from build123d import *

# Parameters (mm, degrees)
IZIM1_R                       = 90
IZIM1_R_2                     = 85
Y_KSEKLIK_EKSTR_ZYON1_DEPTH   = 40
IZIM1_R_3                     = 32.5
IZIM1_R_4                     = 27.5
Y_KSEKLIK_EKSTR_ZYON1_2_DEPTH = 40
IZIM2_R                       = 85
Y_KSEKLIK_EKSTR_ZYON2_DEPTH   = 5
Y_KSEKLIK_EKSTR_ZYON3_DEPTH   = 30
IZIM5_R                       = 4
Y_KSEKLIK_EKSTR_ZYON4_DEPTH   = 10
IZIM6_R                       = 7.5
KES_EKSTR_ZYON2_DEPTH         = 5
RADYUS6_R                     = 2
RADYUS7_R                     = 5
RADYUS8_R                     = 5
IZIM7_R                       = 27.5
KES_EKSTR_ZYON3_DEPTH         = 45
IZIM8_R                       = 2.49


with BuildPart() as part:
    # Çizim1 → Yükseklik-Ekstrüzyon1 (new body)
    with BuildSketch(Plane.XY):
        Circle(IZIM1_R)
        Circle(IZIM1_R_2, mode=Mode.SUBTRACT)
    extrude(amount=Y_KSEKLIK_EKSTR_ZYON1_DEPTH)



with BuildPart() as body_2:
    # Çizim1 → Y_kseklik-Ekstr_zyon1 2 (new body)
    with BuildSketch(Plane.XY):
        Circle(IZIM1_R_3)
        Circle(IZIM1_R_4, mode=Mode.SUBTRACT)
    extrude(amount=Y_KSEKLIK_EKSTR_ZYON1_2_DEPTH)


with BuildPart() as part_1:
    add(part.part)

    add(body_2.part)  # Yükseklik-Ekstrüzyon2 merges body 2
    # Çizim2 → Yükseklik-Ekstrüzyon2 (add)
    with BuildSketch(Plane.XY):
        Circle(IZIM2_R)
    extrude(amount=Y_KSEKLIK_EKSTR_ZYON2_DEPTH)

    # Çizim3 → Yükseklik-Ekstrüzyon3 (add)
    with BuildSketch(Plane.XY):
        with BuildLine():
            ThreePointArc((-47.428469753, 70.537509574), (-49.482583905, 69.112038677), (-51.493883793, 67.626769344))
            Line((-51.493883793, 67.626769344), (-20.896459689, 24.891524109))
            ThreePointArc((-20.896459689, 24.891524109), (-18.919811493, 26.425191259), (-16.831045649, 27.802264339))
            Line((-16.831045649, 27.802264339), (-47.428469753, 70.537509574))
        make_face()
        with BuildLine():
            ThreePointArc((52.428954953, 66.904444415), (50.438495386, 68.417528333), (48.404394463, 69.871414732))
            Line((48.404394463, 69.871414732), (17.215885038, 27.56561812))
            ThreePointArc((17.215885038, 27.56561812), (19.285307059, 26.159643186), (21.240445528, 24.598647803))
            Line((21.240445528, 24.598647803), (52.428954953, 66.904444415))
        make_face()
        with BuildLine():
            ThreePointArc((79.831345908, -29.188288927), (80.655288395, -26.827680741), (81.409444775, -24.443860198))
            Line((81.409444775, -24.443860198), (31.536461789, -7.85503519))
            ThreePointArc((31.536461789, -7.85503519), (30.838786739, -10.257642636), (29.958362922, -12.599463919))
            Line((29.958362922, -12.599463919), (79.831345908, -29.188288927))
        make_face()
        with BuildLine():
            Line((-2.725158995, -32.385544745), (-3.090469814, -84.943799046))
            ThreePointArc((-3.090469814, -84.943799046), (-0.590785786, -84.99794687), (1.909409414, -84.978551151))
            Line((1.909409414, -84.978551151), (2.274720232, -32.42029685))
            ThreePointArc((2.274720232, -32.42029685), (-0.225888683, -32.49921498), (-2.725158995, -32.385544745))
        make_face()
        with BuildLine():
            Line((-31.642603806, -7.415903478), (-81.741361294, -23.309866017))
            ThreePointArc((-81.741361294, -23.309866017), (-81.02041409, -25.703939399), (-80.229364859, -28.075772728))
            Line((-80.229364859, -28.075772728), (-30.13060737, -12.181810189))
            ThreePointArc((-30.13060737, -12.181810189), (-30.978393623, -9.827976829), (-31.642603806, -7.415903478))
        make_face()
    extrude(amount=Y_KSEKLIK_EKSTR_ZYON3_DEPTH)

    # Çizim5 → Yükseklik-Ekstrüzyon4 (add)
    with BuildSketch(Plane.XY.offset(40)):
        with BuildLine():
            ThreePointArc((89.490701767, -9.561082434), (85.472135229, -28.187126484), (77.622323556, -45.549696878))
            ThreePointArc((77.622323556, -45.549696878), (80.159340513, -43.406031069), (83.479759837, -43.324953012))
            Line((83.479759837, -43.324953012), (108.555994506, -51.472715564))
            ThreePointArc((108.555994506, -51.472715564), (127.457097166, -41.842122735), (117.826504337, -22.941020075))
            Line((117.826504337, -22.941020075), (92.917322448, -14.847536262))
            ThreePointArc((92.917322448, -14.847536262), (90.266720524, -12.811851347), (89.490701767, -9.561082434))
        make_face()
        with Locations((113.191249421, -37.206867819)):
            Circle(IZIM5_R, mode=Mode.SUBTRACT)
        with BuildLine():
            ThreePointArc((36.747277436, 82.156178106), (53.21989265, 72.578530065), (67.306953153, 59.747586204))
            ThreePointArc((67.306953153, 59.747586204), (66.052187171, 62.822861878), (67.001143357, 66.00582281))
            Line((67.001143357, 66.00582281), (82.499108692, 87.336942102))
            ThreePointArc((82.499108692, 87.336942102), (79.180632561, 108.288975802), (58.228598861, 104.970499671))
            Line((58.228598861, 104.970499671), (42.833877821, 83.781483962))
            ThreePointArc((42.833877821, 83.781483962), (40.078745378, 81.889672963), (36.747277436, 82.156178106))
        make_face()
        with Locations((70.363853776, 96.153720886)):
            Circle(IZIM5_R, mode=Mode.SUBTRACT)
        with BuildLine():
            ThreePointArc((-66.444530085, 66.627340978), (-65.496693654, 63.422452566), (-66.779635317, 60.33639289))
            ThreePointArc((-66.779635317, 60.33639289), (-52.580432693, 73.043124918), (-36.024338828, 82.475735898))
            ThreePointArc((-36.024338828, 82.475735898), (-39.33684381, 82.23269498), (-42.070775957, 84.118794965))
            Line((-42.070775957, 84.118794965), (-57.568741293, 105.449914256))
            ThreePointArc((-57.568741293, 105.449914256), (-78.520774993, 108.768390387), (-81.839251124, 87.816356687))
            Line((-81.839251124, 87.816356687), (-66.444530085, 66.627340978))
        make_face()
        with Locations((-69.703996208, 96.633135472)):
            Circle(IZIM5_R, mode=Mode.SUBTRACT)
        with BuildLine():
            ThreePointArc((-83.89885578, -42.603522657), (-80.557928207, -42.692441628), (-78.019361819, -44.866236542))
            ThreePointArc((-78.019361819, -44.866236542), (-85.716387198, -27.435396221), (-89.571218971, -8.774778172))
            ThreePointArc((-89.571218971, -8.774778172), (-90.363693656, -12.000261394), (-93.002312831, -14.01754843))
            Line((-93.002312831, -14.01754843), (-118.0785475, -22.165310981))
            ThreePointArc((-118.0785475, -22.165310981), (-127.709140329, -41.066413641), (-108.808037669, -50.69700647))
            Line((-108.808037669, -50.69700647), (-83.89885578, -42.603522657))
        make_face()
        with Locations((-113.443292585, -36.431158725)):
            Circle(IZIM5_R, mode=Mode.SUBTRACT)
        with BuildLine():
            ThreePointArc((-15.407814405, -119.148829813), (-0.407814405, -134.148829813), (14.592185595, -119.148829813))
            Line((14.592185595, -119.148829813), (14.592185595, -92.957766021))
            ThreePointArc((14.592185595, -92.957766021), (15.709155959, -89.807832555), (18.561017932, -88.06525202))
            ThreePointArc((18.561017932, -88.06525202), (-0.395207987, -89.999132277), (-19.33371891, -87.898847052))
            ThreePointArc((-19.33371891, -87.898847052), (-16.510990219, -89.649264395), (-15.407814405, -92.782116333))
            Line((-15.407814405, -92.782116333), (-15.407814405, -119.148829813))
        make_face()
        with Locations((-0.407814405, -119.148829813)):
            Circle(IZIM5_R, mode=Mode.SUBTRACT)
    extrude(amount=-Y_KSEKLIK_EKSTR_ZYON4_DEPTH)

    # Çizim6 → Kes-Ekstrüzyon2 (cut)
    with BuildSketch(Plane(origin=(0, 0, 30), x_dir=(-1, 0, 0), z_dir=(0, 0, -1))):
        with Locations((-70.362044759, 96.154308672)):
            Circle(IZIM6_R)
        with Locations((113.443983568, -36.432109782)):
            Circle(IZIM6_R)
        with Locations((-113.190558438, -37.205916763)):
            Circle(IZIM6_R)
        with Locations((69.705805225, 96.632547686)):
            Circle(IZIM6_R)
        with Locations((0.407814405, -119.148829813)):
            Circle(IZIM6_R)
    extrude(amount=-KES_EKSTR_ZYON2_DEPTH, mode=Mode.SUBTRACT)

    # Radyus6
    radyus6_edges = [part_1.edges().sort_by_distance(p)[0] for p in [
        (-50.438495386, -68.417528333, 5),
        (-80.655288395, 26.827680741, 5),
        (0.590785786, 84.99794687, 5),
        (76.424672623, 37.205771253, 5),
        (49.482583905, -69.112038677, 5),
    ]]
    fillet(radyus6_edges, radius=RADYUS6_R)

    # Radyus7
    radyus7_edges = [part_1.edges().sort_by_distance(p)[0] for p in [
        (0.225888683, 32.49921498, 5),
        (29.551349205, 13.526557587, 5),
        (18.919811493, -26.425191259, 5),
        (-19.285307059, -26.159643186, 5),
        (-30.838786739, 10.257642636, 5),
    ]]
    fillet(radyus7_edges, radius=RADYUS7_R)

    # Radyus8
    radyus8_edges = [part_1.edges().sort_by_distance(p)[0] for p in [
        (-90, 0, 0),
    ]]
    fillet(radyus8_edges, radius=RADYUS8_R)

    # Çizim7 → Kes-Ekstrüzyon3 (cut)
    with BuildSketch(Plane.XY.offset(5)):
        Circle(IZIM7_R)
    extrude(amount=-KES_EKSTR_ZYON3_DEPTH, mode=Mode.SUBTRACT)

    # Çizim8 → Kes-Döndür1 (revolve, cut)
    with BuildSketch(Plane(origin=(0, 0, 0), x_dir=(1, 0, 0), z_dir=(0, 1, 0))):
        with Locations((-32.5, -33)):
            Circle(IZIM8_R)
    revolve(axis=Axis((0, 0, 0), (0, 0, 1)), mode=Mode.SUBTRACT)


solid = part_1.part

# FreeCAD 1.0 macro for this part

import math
import FreeCAD as App
import Part
import Sketcher
from FreeCAD import Vector
Q = App.Units.Quantity


def edges_at(feature, points):
    """Names of the edges that pass closest to the given points."""
    edges = feature.Shape.Edges
    near = lambda p: min(range(len(edges)), key=lambda i: edges[i].distToShape(Part.Vertex(*p))[0])
    return sorted({f"Edge{near(p) + 1}" for p in points})

doc = App.newDocument("Part")
body = doc.addObject("PartDesign::Body", "Body")

# Sketch on XY plane
sketch1 = body.newObject("Sketcher::SketchObject", "Sketch")
sketch1.AttachmentSupport = (doc.getObject("XY_Plane"), [""])
sketch1.MapMode = "FlatFace"
sketch1.addGeometry(Part.Circle(Vector(0, 0, 0), Vector(0, 0, 1), 90), False)
sketch1.addGeometry(Part.Circle(Vector(0, 0, 0), Vector(0, 0, 1), 85), False)
sketch1.addConstraint(Sketcher.Constraint("Coincident", 0, 3, -1, 1))
sketch1.addConstraint(Sketcher.Constraint("Coincident", 1, 3, -1, 1))
sketch1.addConstraint(Sketcher.Constraint("Diameter", 0, Q("180 mm")))
sketch1.addConstraint(Sketcher.Constraint("Diameter", 1, Q("170 mm")))
pad1 = body.newObject("PartDesign::Pad", "Pad")
pad1.Profile = sketch1
pad1.Length = 40
body2 = doc.addObject("PartDesign::Body", "Body001")

# Sketch on XY plane
sketch2 = body2.newObject("Sketcher::SketchObject", "Sketch001")
sketch2.AttachmentSupport = (doc.getObject("XY_Plane001"), [""])
sketch2.MapMode = "FlatFace"
sketch2.addGeometry(Part.Circle(Vector(0, 0, 0), Vector(0, 0, 1), 32), False)
sketch2.addGeometry(Part.Circle(Vector(0, 0, 0), Vector(0, 0, 1), 28), False)
sketch2.addConstraint(Sketcher.Constraint("Coincident", 0, 3, -1, 1))
sketch2.addConstraint(Sketcher.Constraint("Coincident", 1, 3, -1, 1))
sketch2.addConstraint(Sketcher.Constraint("Diameter", 0, Q("65 mm")))
sketch2.addConstraint(Sketcher.Constraint("Diameter", 1, Q("55 mm")))
pad2 = body2.newObject("PartDesign::Pad", "Pad001")
pad2.Profile = sketch2
pad2.Length = 40
body.AllowCompound = True
doc.recompute()

boolean = body.newObject("PartDesign::Boolean", "Boolean")
boolean.Type = "Fuse"
boolean.addObjects([body2])

# Sketch on XY plane
sketch3 = body.newObject("Sketcher::SketchObject", "Sketch002")
sketch3.AttachmentSupport = (doc.getObject("XY_Plane"), [""])
sketch3.MapMode = "FlatFace"
sketch3.addGeometry(Part.Circle(Vector(0, 0, 0), Vector(0, 0, 1), 85), False)
sketch3.addConstraint(Sketcher.Constraint("Coincident", 0, 3, -1, 1))
sketch3.addConstraint(Sketcher.Constraint("Diameter", 0, Q("170 mm")))
pad3 = body.newObject("PartDesign::Pad", "Pad002")
pad3.Profile = sketch3
pad3.Length = 5

# Sketch on XY plane
sketch4 = body.newObject("Sketcher::SketchObject", "Sketch003")
sketch4.AttachmentSupport = (doc.getObject("XY_Plane"), [""])
sketch4.MapMode = "FlatFace"
sketch4.addGeometry(Part.ArcOfCircle(Part.Circle(Vector(0, 0, 0), Vector(0, 0, 1), 85), math.radians(123.92), math.radians(127.29)), False)
sketch4.addGeometry(Part.LineSegment(Vector(-51.5, 67.6, 0), Vector(-20.9, 24.9, 0)), False)
sketch4.addGeometry(Part.ArcOfCircle(Part.Circle(Vector(0, 0, 0), Vector(0, 0, 1), 32.5), math.radians(121.19), math.radians(130.01)), False)
sketch4.addGeometry(Part.LineSegment(Vector(-16.8, 27.8, 0), Vector(-47.4, 70.5, 0)), False)
sketch4.addGeometry(Part.ArcOfCircle(Part.Circle(Vector(0, 0, 0), Vector(0, 0, 1), 85), math.radians(51.92), math.radians(55.29)), False)
sketch4.addGeometry(Part.LineSegment(Vector(48.4, 69.9, 0), Vector(17.2, 27.6, 0)), False)
sketch4.addGeometry(Part.ArcOfCircle(Part.Circle(Vector(0, 0, 0), Vector(0, 0, 1), 32.5), math.radians(49.19), math.radians(58.01)), False)
sketch4.addGeometry(Part.LineSegment(Vector(21.2, 24.6, 0), Vector(52.4, 66.9, 0)), False)
sketch4.addGeometry(Part.ArcOfCircle(Part.Circle(Vector(0, 0, 0), Vector(0, 0, 1), 85), math.radians(-20.08), math.radians(-16.71)), False)
sketch4.addGeometry(Part.LineSegment(Vector(81.4, -24.4, 0), Vector(31.5, -7.9, 0)), False)
sketch4.addGeometry(Part.ArcOfCircle(Part.Circle(Vector(0, 0, 0), Vector(0, 0, 1), 32.5), math.radians(-22.81), math.radians(-13.99)), False)
sketch4.addGeometry(Part.LineSegment(Vector(30, -12.6, 0), Vector(79.8, -29.2, 0)), False)
sketch4.addGeometry(Part.LineSegment(Vector(-2.7, -32.4, 0), Vector(-3.1, -84.9, 0)), False)
sketch4.addGeometry(Part.ArcOfCircle(Part.Circle(Vector(0, 0, 0), Vector(0, 0, 1), 85), math.radians(-92.08), math.radians(-88.71)), False)
sketch4.addGeometry(Part.LineSegment(Vector(1.9, -85, 0), Vector(2.3, -32.4, 0)), False)
sketch4.addGeometry(Part.ArcOfCircle(Part.Circle(Vector(0, 0, 0), Vector(0, 0, 1), 32.5), math.radians(-94.81), math.radians(-85.99)), False)
sketch4.addGeometry(Part.LineSegment(Vector(-31.6, -7.4, 0), Vector(-81.7, -23.3, 0)), False)
sketch4.addGeometry(Part.ArcOfCircle(Part.Circle(Vector(0, 0, 0), Vector(0, 0, 1), 85), math.radians(-164.08), math.radians(-160.71)), False)
sketch4.addGeometry(Part.LineSegment(Vector(-80.2, -28.1, 0), Vector(-30.1, -12.2, 0)), False)
sketch4.addGeometry(Part.ArcOfCircle(Part.Circle(Vector(0, 0, 0), Vector(0, 0, 1), 32.5), math.radians(-166.81), math.radians(-157.99)), False)
sketch4.addConstraint(Sketcher.Constraint("Coincident", 0, 2, 1, 1))
sketch4.addConstraint(Sketcher.Constraint("Coincident", 1, 2, 2, 2))
sketch4.addConstraint(Sketcher.Constraint("Coincident", 2, 1, 3, 1))
sketch4.addConstraint(Sketcher.Constraint("Coincident", 3, 2, 0, 1))
sketch4.addConstraint(Sketcher.Constraint("Coincident", 4, 2, 5, 1))
sketch4.addConstraint(Sketcher.Constraint("Coincident", 5, 2, 6, 2))
sketch4.addConstraint(Sketcher.Constraint("Coincident", 6, 1, 7, 1))
sketch4.addConstraint(Sketcher.Constraint("Coincident", 7, 2, 4, 1))
sketch4.addConstraint(Sketcher.Constraint("Coincident", 8, 2, 9, 1))
sketch4.addConstraint(Sketcher.Constraint("Coincident", 9, 2, 10, 2))
sketch4.addConstraint(Sketcher.Constraint("Coincident", 10, 1, 11, 1))
sketch4.addConstraint(Sketcher.Constraint("Coincident", 11, 2, 8, 1))
sketch4.addConstraint(Sketcher.Constraint("Coincident", 12, 2, 13, 1))
sketch4.addConstraint(Sketcher.Constraint("Coincident", 13, 2, 14, 1))
sketch4.addConstraint(Sketcher.Constraint("Coincident", 14, 2, 15, 2))
sketch4.addConstraint(Sketcher.Constraint("Coincident", 15, 1, 12, 1))
sketch4.addConstraint(Sketcher.Constraint("Coincident", 16, 2, 17, 1))
sketch4.addConstraint(Sketcher.Constraint("Coincident", 17, 2, 18, 1))
sketch4.addConstraint(Sketcher.Constraint("Coincident", 18, 2, 19, 2))
sketch4.addConstraint(Sketcher.Constraint("Coincident", 19, 1, 16, 1))
sketch4.addConstraint(Sketcher.Constraint("Coincident", 0, 3, -1, 1))
sketch4.addConstraint(Sketcher.Constraint("Coincident", 2, 3, -1, 1))
sketch4.addConstraint(Sketcher.Constraint("Coincident", 4, 3, -1, 1))
sketch4.addConstraint(Sketcher.Constraint("Coincident", 6, 3, -1, 1))
sketch4.addConstraint(Sketcher.Constraint("Coincident", 8, 3, -1, 1))
sketch4.addConstraint(Sketcher.Constraint("Coincident", 10, 3, -1, 1))
sketch4.addConstraint(Sketcher.Constraint("Coincident", 13, 3, -1, 1))
sketch4.addConstraint(Sketcher.Constraint("Coincident", 15, 3, -1, 1))
sketch4.addConstraint(Sketcher.Constraint("Coincident", 17, 3, -1, 1))
sketch4.addConstraint(Sketcher.Constraint("Coincident", 19, 3, -1, 1))
sketch4.addConstraint(Sketcher.Constraint("Equal", 0, 4))
sketch4.addConstraint(Sketcher.Constraint("Equal", 2, 6))
sketch4.addConstraint(Sketcher.Constraint("Equal", 4, 8))
sketch4.addConstraint(Sketcher.Constraint("Equal", 6, 10))
sketch4.addConstraint(Sketcher.Constraint("Equal", 8, 13))
sketch4.addConstraint(Sketcher.Constraint("Equal", 10, 15))
sketch4.addConstraint(Sketcher.Constraint("Equal", 13, 17))
sketch4.addConstraint(Sketcher.Constraint("Equal", 15, 19))
sketch4.addConstraint(Sketcher.Constraint("Parallel", 1, 3))
sketch4.addConstraint(Sketcher.Constraint("Parallel", 5, 7))
sketch4.addConstraint(Sketcher.Constraint("Parallel", 9, 11))
sketch4.addConstraint(Sketcher.Constraint("Parallel", 12, 14))
sketch4.addConstraint(Sketcher.Constraint("Parallel", 16, 18))
sketch4.addConstraint(Sketcher.Constraint("Equal", 1, 3))
sketch4.addConstraint(Sketcher.Constraint("Equal", 3, 5))
sketch4.addConstraint(Sketcher.Constraint("Equal", 5, 7))
sketch4.addConstraint(Sketcher.Constraint("Equal", 7, 9))
sketch4.addConstraint(Sketcher.Constraint("Equal", 9, 11))
sketch4.addConstraint(Sketcher.Constraint("Equal", 11, 12))
sketch4.addConstraint(Sketcher.Constraint("Equal", 12, 14))
sketch4.addConstraint(Sketcher.Constraint("Equal", 14, 16))
sketch4.addConstraint(Sketcher.Constraint("Equal", 16, 18))
sketch4.addConstraint(Sketcher.Constraint("Radius", 0, Q("85 mm")))
sketch4.addConstraint(Sketcher.Constraint("Radius", 2, Q("32.5 mm")))
sketch4.addConstraint(Sketcher.Constraint("DistanceX", 2, 1, 7, 2, Q("69.260001 mm")))
sketch4.addConstraint(Sketcher.Constraint("DistanceX", 6, 1, 8, 2, Q("60.168999 mm")))
sketch4.addConstraint(Sketcher.Constraint("DistanceY", 12, 2, -1, 1, Q("84.943799 mm")))
sketch4.addConstraint(Sketcher.Constraint("DistanceX", 10, 1, 9, 2, Q("1.578099 mm")))
sketch4.addConstraint(Sketcher.Constraint("DistanceX", 16, 2, 1, 2, Q("60.844902 mm")))
sketch4.addConstraint(Sketcher.Constraint("DistanceY", -1, 1, 0, 2, Q("67.626769 mm")))
pad4 = body.newObject("PartDesign::Pad", "Pad003")
pad4.Profile = sketch4
pad4.Length = 30

# Sketch on XY plane
sketch5 = body.newObject("Sketcher::SketchObject", "Sketch004")
sketch5.AttachmentSupport = (doc.getObject("XY_Plane"), [""])
sketch5.MapMode = "FlatFace"
sketch5.AttachmentOffset = App.Placement(Vector(0, 0, 40), App.Rotation())
sketch5.addGeometry(Part.ArcOfCircle(Part.Circle(Vector(0, 0, 0), Vector(0, 0, 1), 90), math.radians(-30), math.radians(-6)), False)
sketch5.addGeometry(Part.ArcOfCircle(Part.Circle(Vector(81.9, -48.1, 0), Vector(0, 0, 1), 5), math.radians(72), math.radians(150)), False)
sketch5.addGeometry(Part.LineSegment(Vector(83.5, -43.3, 0), Vector(108.6, -51.5, 0)), False)
sketch5.addGeometry(Part.ArcOfCircle(Part.Circle(Vector(113.2, -37.2, 0), Vector(0, 0, 1), 15), math.radians(-108), math.radians(72)), False)
sketch5.addGeometry(Part.LineSegment(Vector(117.8, -22.9, 0), Vector(92.9, -14.8, 0)), False)
sketch5.addGeometry(Part.ArcOfCircle(Part.Circle(Vector(94.5, -10.1, 0), Vector(0, 0, 1), 5), math.radians(174), math.radians(252)), False)
sketch5.addGeometry(Part.Circle(Vector(113.2, -37.2, 0), Vector(0, 0, 1), 4), False)
sketch5.addGeometry(Part.ArcOfCircle(Part.Circle(Vector(0, 0, 0), Vector(0, 0, 1), 90), math.radians(42), math.radians(66)), False)
sketch5.addGeometry(Part.ArcOfCircle(Part.Circle(Vector(71, 63.1, 0), Vector(0, 0, 1), 5), math.radians(144), math.radians(222)), False)
sketch5.addGeometry(Part.LineSegment(Vector(67, 66, 0), Vector(82.5, 87.3, 0)), False)
sketch5.addGeometry(Part.ArcOfCircle(Part.Circle(Vector(70.4, 96.2, 0), Vector(0, 0, 1), 15), math.radians(-36), math.radians(144)), False)
sketch5.addGeometry(Part.LineSegment(Vector(58.2, 105, 0), Vector(42.8, 83.8, 0)), False)
sketch5.addGeometry(Part.ArcOfCircle(Part.Circle(Vector(38.8, 86.7, 0), Vector(0, 0, 1), 5), math.radians(-114), math.radians(-36)), False)
sketch5.addGeometry(Part.Circle(Vector(70.4, 96.2, 0), Vector(0, 0, 1), 4), False)
sketch5.addGeometry(Part.ArcOfCircle(Part.Circle(Vector(-70.5, 63.7, 0), Vector(0, 0, 1), 5), math.radians(-42), math.radians(36)), False)
sketch5.addGeometry(Part.ArcOfCircle(Part.Circle(Vector(0, 0, 0), Vector(0, 0, 1), 90), math.radians(114), math.radians(138)), False)
sketch5.addGeometry(Part.ArcOfCircle(Part.Circle(Vector(-38, 87.1, 0), Vector(0, 0, 1), 5), math.radians(-144), math.radians(-66)), False)
sketch5.addGeometry(Part.LineSegment(Vector(-42.1, 84.1, 0), Vector(-57.6, 105.4, 0)), False)
sketch5.addGeometry(Part.ArcOfCircle(Part.Circle(Vector(-69.7, 96.6, 0), Vector(0, 0, 1), 15), math.radians(36), math.radians(216)), False)
sketch5.addGeometry(Part.LineSegment(Vector(-81.8, 87.8, 0), Vector(-66.4, 66.6, 0)), False)
sketch5.addGeometry(Part.Circle(Vector(-69.7, 96.6, 0), Vector(0, 0, 1), 4), False)
sketch5.addGeometry(Part.ArcOfCircle(Part.Circle(Vector(-82.4, -47.4, 0), Vector(0, 0, 1), 5), math.radians(30), math.radians(108)), False)
sketch5.addGeometry(Part.ArcOfCircle(Part.Circle(Vector(0, 0, 0), Vector(0, 0, 1), 90), math.radians(-174), math.radians(-150)), False)
sketch5.addGeometry(Part.ArcOfCircle(Part.Circle(Vector(-94.5, -9.3, 0), Vector(0, 0, 1), 5), math.radians(-72), math.radians(6)), False)
sketch5.addGeometry(Part.LineSegment(Vector(-93, -14, 0), Vector(-118.1, -22.2, 0)), False)
sketch5.addGeometry(Part.ArcOfCircle(Part.Circle(Vector(-113.4, -36.4, 0), Vector(0, 0, 1), 15), math.radians(108), math.radians(288)), False)
sketch5.addGeometry(Part.LineSegment(Vector(-108.8, -50.7, 0), Vector(-83.9, -42.6, 0)), False)
sketch5.addGeometry(Part.Circle(Vector(-113.4, -36.4, 0), Vector(0, 0, 1), 4), False)
sketch5.addGeometry(Part.ArcOfCircle(Part.Circle(Vector(-0.4, -119.1, 0), Vector(0, 0, 1), 15), math.radians(180), math.radians(360)), False)
sketch5.addGeometry(Part.LineSegment(Vector(14.6, -119.1, 0), Vector(14.6, -93, 0)), False)
sketch5.addGeometry(Part.ArcOfCircle(Part.Circle(Vector(19.6, -93, 0), Vector(0, 0, 1), 5), math.radians(102), math.radians(180)), False)
sketch5.addGeometry(Part.ArcOfCircle(Part.Circle(Vector(0, 0, 0), Vector(0, 0, 1), 90), math.radians(-102), math.radians(-78)), False)
sketch5.addGeometry(Part.ArcOfCircle(Part.Circle(Vector(-20.4, -92.8, 0), Vector(0, 0, 1), 5), math.radians(0), math.radians(78)), False)
sketch5.addGeometry(Part.LineSegment(Vector(-15.4, -92.8, 0), Vector(-15.4, -119.1, 0)), False)
sketch5.addGeometry(Part.Circle(Vector(-0.4, -119.1, 0), Vector(0, 0, 1), 4), False)
sketch5.addConstraint(Sketcher.Constraint("Tangent", 0, 1, 1, 2))
sketch5.addConstraint(Sketcher.Constraint("Tangent", 1, 1, 2, 1))
sketch5.addConstraint(Sketcher.Constraint("Tangent", 2, 2, 3, 1))
sketch5.addConstraint(Sketcher.Constraint("Tangent", 3, 2, 4, 1))
sketch5.addConstraint(Sketcher.Constraint("Tangent", 4, 2, 5, 2))
sketch5.addConstraint(Sketcher.Constraint("Tangent", 5, 1, 0, 2))
sketch5.addConstraint(Sketcher.Constraint("Tangent", 7, 1, 8, 2))
sketch5.addConstraint(Sketcher.Constraint("Tangent", 8, 1, 9, 1))
sketch5.addConstraint(Sketcher.Constraint("Tangent", 9, 2, 10, 1))
sketch5.addConstraint(Sketcher.Constraint("Tangent", 10, 2, 11, 1))
sketch5.addConstraint(Sketcher.Constraint("Tangent", 11, 2, 12, 2))
sketch5.addConstraint(Sketcher.Constraint("Tangent", 12, 1, 7, 2))
sketch5.addConstraint(Sketcher.Constraint("Tangent", 14, 1, 15, 2))
sketch5.addConstraint(Sketcher.Constraint("Tangent", 15, 1, 16, 2))
sketch5.addConstraint(Sketcher.Constraint("Tangent", 16, 1, 17, 1))
sketch5.addConstraint(Sketcher.Constraint("Tangent", 17, 2, 18, 1))
sketch5.addConstraint(Sketcher.Constraint("Tangent", 18, 2, 19, 1))
sketch5.addConstraint(Sketcher.Constraint("Tangent", 19, 2, 14, 2))
sketch5.addConstraint(Sketcher.Constraint("Tangent", 21, 1, 22, 2))
sketch5.addConstraint(Sketcher.Constraint("Tangent", 22, 1, 23, 2))
sketch5.addConstraint(Sketcher.Constraint("Tangent", 23, 1, 24, 1))
sketch5.addConstraint(Sketcher.Constraint("Tangent", 24, 2, 25, 1))
sketch5.addConstraint(Sketcher.Constraint("Tangent", 25, 2, 26, 1))
sketch5.addConstraint(Sketcher.Constraint("Tangent", 26, 2, 21, 2))
sketch5.addConstraint(Sketcher.Constraint("Tangent", 28, 2, 29, 1))
sketch5.addConstraint(Sketcher.Constraint("Tangent", 29, 2, 30, 2))
sketch5.addConstraint(Sketcher.Constraint("Tangent", 30, 1, 31, 2))
sketch5.addConstraint(Sketcher.Constraint("Tangent", 31, 1, 32, 2))
sketch5.addConstraint(Sketcher.Constraint("Tangent", 32, 1, 33, 1))
sketch5.addConstraint(Sketcher.Constraint("Tangent", 33, 2, 28, 1))
sketch5.addConstraint(Sketcher.Constraint("Vertical", 29))
sketch5.addConstraint(Sketcher.Constraint("Vertical", 33))
sketch5.addConstraint(Sketcher.Constraint("Coincident", 0, 3, -1, 1))
sketch5.addConstraint(Sketcher.Constraint("Coincident", 7, 3, -1, 1))
sketch5.addConstraint(Sketcher.Constraint("Coincident", 15, 3, -1, 1))
sketch5.addConstraint(Sketcher.Constraint("Coincident", 22, 3, -1, 1))
sketch5.addConstraint(Sketcher.Constraint("Coincident", 31, 3, -1, 1))
sketch5.addConstraint(Sketcher.Constraint("Coincident", 6, 3, 3, 3))
sketch5.addConstraint(Sketcher.Constraint("Coincident", 13, 3, 10, 3))
sketch5.addConstraint(Sketcher.Constraint("Coincident", 20, 3, 18, 3))
sketch5.addConstraint(Sketcher.Constraint("Coincident", 27, 3, 25, 3))
sketch5.addConstraint(Sketcher.Constraint("Coincident", 34, 3, 28, 3))
sketch5.addConstraint(Sketcher.Constraint("Equal", 1, 5))
sketch5.addConstraint(Sketcher.Constraint("Equal", 0, 7))
sketch5.addConstraint(Sketcher.Constraint("Equal", 5, 8))
sketch5.addConstraint(Sketcher.Constraint("Equal", 3, 10))
sketch5.addConstraint(Sketcher.Constraint("Equal", 8, 12))
sketch5.addConstraint(Sketcher.Constraint("Equal", 6, 13))
sketch5.addConstraint(Sketcher.Constraint("Equal", 12, 14))
sketch5.addConstraint(Sketcher.Constraint("Equal", 7, 15))
sketch5.addConstraint(Sketcher.Constraint("Equal", 14, 16))
sketch5.addConstraint(Sketcher.Constraint("Equal", 10, 18))
sketch5.addConstraint(Sketcher.Constraint("Equal", 13, 20))
sketch5.addConstraint(Sketcher.Constraint("Equal", 16, 21))
sketch5.addConstraint(Sketcher.Constraint("Equal", 15, 22))
sketch5.addConstraint(Sketcher.Constraint("Equal", 21, 23))
sketch5.addConstraint(Sketcher.Constraint("Equal", 18, 25))
sketch5.addConstraint(Sketcher.Constraint("Equal", 20, 27))
sketch5.addConstraint(Sketcher.Constraint("Equal", 25, 28))
sketch5.addConstraint(Sketcher.Constraint("Equal", 23, 30))
sketch5.addConstraint(Sketcher.Constraint("Equal", 22, 31))
sketch5.addConstraint(Sketcher.Constraint("Equal", 30, 32))
sketch5.addConstraint(Sketcher.Constraint("Equal", 27, 34))
sketch5.addConstraint(Sketcher.Constraint("Parallel", 2, 4))
sketch5.addConstraint(Sketcher.Constraint("Parallel", 9, 11))
sketch5.addConstraint(Sketcher.Constraint("Parallel", 17, 19))
sketch5.addConstraint(Sketcher.Constraint("Parallel", 24, 26))
sketch5.addConstraint(Sketcher.Constraint("Equal", 2, 9))
sketch5.addConstraint(Sketcher.Constraint("Equal", 4, 11))
sketch5.addConstraint(Sketcher.Constraint("Equal", 9, 17))
sketch5.addConstraint(Sketcher.Constraint("Equal", 11, 19))
sketch5.addConstraint(Sketcher.Constraint("Equal", 17, 24))
sketch5.addConstraint(Sketcher.Constraint("Equal", 19, 26))
sketch5.addConstraint(Sketcher.Constraint("Diameter", 6, Q("8 mm")))
sketch5.addConstraint(Sketcher.Constraint("Radius", 0, Q("90 mm")))
sketch5.addConstraint(Sketcher.Constraint("Radius", 1, Q("5 mm")))
sketch5.addConstraint(Sketcher.Constraint("Radius", 3, Q("15 mm")))
sketch5.addConstraint(Sketcher.Constraint("Angle", 2, Q("-18 deg")))
sketch5.addConstraint(Sketcher.Constraint("Angle", 9, Q("54 deg")))
sketch5.addConstraint(Sketcher.Constraint("Angle", 17, Q("126 deg")))
sketch5.addConstraint(Sketcher.Constraint("Angle", 24, Q("-162 deg")))
sketch5.addConstraint(Sketcher.Constraint("DistanceX", -1, 1, 5, 1, Q("89.490702 mm")))
sketch5.addConstraint(Sketcher.Constraint("DistanceX", -1, 1, 10, 2, Q("58.228599 mm")))
sketch5.addConstraint(Sketcher.Constraint("DistanceY", 29, 1, 29, 2, Q("26.191064 mm")))
sketch5.addConstraint(Sketcher.Constraint("DistanceY", 33, 2, 33, 1, Q("26.366713 mm")))
pad5 = body.newObject("PartDesign::Pad", "Pad004")
pad5.Profile = sketch5
pad5.Length = 10
pad5.Reversed = True

# Sketch on XY plane
sketch6 = body.newObject("Sketcher::SketchObject", "Sketch005")
sketch6.AttachmentSupport = (doc.getObject("XY_Plane"), [""])
sketch6.MapMode = "FlatFace"
sketch6.AttachmentOffset = App.Placement(Vector(0, 0, 30), App.Rotation())
sketch6.addGeometry(Part.Circle(Vector(70, 96, 0), Vector(0, 0, 1), 8), False)
sketch6.addGeometry(Part.Circle(Vector(-113, -36, 0), Vector(0, 0, 1), 8), False)
sketch6.addGeometry(Part.Circle(Vector(113, -37, 0), Vector(0, 0, 1), 8), False)
sketch6.addGeometry(Part.Circle(Vector(-70, 97, 0), Vector(0, 0, 1), 8), False)
sketch6.addGeometry(Part.Circle(Vector(0, -119, 0), Vector(0, 0, 1), 8), False)
sketch6.addConstraint(Sketcher.Constraint("Equal", 0, 1))
sketch6.addConstraint(Sketcher.Constraint("Equal", 1, 2))
sketch6.addConstraint(Sketcher.Constraint("Equal", 2, 3))
sketch6.addConstraint(Sketcher.Constraint("Equal", 3, 4))
sketch6.addConstraint(Sketcher.Constraint("Diameter", 0, Q("15 mm")))
sketch6.addConstraint(Sketcher.Constraint("DistanceY", -1, 1, 0, 3, Q("96.154309 mm")))
sketch6.addConstraint(Sketcher.Constraint("DistanceY", 1, 3, -1, 1, Q("36.43211 mm")))
sketch6.addConstraint(Sketcher.Constraint("DistanceX", -1, 1, 2, 3, Q("113.190558 mm")))
sketch6.addConstraint(Sketcher.Constraint("DistanceY", 4, 3, -1, 1, Q("119.14883 mm")))
sketch6.addConstraint(Sketcher.Constraint("DistanceX", 1, 3, 0, 3, Q("183.806028 mm")))
sketch6.addConstraint(Sketcher.Constraint("DistanceX", 3, 3, 0, 3, Q("140.06785 mm")))
sketch6.addConstraint(Sketcher.Constraint("DistanceY", 0, 3, 3, 3, Q("0.478239 mm")))
sketch6.addConstraint(Sketcher.Constraint("DistanceX", 1, 3, 4, 3, Q("113.036169 mm")))
sketch6.addConstraint(Sketcher.Constraint("DistanceX", -1, 1, 0, 3, Q("70.362045 mm")))
sketch6.addConstraint(Sketcher.Constraint("DistanceY", 2, 3, -1, 1, Q("37.205917 mm")))
pocket1 = body.newObject("PartDesign::Pocket", "Pocket")
pocket1.Profile = sketch6
pocket1.Length = 5
pocket1.Reversed = True
doc.recompute()

fillet = body.newObject("PartDesign::Fillet", "Fillet")
fillet.Base = (pocket1, edges_at(pocket1, [
    (-50.438, -68.418, 5),
    (-80.655, 26.828, 5),
    (0.591, 84.998, 5),
    (76.425, 37.206, 5),
    (49.483, -69.112, 5),
]))
fillet.Radius = 2
doc.recompute()

fillet2 = body.newObject("PartDesign::Fillet", "Fillet001")
fillet2.Base = (fillet, edges_at(fillet, [
    (0.226, 32.499, 5),
    (29.551, 13.527, 5),
    (18.92, -26.425, 5),
    (-19.285, -26.16, 5),
    (-30.839, 10.258, 5),
]))
fillet2.Radius = 5
doc.recompute()

fillet3 = body.newObject("PartDesign::Fillet", "Fillet002")
fillet3.Base = (fillet2, edges_at(fillet2, [(-90, 0, 0)]))
fillet3.Radius = 5

# Sketch on XY plane
sketch7 = body.newObject("Sketcher::SketchObject", "Sketch006")
sketch7.AttachmentSupport = (doc.getObject("XY_Plane"), [""])
sketch7.MapMode = "FlatFace"
sketch7.AttachmentOffset = App.Placement(Vector(0, 0, 5), App.Rotation())
sketch7.addGeometry(Part.Circle(Vector(0, 0, 0), Vector(0, 0, 1), 28), False)
sketch7.addConstraint(Sketcher.Constraint("Coincident", 0, 3, -1, 1))
sketch7.addConstraint(Sketcher.Constraint("Diameter", 0, Q("55 mm")))
pocket2 = body.newObject("PartDesign::Pocket", "Pocket001")
pocket2.Profile = sketch7
pocket2.Length = 45

# Sketch on XZ plane
sketch8 = body.newObject("Sketcher::SketchObject", "Sketch007")
sketch8.AttachmentSupport = (doc.getObject("XZ_Plane"), [""])
sketch8.MapMode = "FlatFace"
sketch8.addGeometry(Part.Circle(Vector(-32.5, 33, 0), Vector(0, 0, 1), 2.5), False)
sketch8.addConstraint(Sketcher.Constraint("Diameter", 0, Q("4.98 mm")))
sketch8.addConstraint(Sketcher.Constraint("DistanceY", -1, 1, 0, 3, Q("33 mm")))
sketch8.addConstraint(Sketcher.Constraint("DistanceX", 0, 3, -1, 1, Q("32.5 mm")))
groove = body.newObject("PartDesign::Groove", "Groove")
groove.Profile = sketch8
groove.ReferenceAxis = (sketch8, ["V_Axis"])
groove.Angle = 360

doc.recompute()
